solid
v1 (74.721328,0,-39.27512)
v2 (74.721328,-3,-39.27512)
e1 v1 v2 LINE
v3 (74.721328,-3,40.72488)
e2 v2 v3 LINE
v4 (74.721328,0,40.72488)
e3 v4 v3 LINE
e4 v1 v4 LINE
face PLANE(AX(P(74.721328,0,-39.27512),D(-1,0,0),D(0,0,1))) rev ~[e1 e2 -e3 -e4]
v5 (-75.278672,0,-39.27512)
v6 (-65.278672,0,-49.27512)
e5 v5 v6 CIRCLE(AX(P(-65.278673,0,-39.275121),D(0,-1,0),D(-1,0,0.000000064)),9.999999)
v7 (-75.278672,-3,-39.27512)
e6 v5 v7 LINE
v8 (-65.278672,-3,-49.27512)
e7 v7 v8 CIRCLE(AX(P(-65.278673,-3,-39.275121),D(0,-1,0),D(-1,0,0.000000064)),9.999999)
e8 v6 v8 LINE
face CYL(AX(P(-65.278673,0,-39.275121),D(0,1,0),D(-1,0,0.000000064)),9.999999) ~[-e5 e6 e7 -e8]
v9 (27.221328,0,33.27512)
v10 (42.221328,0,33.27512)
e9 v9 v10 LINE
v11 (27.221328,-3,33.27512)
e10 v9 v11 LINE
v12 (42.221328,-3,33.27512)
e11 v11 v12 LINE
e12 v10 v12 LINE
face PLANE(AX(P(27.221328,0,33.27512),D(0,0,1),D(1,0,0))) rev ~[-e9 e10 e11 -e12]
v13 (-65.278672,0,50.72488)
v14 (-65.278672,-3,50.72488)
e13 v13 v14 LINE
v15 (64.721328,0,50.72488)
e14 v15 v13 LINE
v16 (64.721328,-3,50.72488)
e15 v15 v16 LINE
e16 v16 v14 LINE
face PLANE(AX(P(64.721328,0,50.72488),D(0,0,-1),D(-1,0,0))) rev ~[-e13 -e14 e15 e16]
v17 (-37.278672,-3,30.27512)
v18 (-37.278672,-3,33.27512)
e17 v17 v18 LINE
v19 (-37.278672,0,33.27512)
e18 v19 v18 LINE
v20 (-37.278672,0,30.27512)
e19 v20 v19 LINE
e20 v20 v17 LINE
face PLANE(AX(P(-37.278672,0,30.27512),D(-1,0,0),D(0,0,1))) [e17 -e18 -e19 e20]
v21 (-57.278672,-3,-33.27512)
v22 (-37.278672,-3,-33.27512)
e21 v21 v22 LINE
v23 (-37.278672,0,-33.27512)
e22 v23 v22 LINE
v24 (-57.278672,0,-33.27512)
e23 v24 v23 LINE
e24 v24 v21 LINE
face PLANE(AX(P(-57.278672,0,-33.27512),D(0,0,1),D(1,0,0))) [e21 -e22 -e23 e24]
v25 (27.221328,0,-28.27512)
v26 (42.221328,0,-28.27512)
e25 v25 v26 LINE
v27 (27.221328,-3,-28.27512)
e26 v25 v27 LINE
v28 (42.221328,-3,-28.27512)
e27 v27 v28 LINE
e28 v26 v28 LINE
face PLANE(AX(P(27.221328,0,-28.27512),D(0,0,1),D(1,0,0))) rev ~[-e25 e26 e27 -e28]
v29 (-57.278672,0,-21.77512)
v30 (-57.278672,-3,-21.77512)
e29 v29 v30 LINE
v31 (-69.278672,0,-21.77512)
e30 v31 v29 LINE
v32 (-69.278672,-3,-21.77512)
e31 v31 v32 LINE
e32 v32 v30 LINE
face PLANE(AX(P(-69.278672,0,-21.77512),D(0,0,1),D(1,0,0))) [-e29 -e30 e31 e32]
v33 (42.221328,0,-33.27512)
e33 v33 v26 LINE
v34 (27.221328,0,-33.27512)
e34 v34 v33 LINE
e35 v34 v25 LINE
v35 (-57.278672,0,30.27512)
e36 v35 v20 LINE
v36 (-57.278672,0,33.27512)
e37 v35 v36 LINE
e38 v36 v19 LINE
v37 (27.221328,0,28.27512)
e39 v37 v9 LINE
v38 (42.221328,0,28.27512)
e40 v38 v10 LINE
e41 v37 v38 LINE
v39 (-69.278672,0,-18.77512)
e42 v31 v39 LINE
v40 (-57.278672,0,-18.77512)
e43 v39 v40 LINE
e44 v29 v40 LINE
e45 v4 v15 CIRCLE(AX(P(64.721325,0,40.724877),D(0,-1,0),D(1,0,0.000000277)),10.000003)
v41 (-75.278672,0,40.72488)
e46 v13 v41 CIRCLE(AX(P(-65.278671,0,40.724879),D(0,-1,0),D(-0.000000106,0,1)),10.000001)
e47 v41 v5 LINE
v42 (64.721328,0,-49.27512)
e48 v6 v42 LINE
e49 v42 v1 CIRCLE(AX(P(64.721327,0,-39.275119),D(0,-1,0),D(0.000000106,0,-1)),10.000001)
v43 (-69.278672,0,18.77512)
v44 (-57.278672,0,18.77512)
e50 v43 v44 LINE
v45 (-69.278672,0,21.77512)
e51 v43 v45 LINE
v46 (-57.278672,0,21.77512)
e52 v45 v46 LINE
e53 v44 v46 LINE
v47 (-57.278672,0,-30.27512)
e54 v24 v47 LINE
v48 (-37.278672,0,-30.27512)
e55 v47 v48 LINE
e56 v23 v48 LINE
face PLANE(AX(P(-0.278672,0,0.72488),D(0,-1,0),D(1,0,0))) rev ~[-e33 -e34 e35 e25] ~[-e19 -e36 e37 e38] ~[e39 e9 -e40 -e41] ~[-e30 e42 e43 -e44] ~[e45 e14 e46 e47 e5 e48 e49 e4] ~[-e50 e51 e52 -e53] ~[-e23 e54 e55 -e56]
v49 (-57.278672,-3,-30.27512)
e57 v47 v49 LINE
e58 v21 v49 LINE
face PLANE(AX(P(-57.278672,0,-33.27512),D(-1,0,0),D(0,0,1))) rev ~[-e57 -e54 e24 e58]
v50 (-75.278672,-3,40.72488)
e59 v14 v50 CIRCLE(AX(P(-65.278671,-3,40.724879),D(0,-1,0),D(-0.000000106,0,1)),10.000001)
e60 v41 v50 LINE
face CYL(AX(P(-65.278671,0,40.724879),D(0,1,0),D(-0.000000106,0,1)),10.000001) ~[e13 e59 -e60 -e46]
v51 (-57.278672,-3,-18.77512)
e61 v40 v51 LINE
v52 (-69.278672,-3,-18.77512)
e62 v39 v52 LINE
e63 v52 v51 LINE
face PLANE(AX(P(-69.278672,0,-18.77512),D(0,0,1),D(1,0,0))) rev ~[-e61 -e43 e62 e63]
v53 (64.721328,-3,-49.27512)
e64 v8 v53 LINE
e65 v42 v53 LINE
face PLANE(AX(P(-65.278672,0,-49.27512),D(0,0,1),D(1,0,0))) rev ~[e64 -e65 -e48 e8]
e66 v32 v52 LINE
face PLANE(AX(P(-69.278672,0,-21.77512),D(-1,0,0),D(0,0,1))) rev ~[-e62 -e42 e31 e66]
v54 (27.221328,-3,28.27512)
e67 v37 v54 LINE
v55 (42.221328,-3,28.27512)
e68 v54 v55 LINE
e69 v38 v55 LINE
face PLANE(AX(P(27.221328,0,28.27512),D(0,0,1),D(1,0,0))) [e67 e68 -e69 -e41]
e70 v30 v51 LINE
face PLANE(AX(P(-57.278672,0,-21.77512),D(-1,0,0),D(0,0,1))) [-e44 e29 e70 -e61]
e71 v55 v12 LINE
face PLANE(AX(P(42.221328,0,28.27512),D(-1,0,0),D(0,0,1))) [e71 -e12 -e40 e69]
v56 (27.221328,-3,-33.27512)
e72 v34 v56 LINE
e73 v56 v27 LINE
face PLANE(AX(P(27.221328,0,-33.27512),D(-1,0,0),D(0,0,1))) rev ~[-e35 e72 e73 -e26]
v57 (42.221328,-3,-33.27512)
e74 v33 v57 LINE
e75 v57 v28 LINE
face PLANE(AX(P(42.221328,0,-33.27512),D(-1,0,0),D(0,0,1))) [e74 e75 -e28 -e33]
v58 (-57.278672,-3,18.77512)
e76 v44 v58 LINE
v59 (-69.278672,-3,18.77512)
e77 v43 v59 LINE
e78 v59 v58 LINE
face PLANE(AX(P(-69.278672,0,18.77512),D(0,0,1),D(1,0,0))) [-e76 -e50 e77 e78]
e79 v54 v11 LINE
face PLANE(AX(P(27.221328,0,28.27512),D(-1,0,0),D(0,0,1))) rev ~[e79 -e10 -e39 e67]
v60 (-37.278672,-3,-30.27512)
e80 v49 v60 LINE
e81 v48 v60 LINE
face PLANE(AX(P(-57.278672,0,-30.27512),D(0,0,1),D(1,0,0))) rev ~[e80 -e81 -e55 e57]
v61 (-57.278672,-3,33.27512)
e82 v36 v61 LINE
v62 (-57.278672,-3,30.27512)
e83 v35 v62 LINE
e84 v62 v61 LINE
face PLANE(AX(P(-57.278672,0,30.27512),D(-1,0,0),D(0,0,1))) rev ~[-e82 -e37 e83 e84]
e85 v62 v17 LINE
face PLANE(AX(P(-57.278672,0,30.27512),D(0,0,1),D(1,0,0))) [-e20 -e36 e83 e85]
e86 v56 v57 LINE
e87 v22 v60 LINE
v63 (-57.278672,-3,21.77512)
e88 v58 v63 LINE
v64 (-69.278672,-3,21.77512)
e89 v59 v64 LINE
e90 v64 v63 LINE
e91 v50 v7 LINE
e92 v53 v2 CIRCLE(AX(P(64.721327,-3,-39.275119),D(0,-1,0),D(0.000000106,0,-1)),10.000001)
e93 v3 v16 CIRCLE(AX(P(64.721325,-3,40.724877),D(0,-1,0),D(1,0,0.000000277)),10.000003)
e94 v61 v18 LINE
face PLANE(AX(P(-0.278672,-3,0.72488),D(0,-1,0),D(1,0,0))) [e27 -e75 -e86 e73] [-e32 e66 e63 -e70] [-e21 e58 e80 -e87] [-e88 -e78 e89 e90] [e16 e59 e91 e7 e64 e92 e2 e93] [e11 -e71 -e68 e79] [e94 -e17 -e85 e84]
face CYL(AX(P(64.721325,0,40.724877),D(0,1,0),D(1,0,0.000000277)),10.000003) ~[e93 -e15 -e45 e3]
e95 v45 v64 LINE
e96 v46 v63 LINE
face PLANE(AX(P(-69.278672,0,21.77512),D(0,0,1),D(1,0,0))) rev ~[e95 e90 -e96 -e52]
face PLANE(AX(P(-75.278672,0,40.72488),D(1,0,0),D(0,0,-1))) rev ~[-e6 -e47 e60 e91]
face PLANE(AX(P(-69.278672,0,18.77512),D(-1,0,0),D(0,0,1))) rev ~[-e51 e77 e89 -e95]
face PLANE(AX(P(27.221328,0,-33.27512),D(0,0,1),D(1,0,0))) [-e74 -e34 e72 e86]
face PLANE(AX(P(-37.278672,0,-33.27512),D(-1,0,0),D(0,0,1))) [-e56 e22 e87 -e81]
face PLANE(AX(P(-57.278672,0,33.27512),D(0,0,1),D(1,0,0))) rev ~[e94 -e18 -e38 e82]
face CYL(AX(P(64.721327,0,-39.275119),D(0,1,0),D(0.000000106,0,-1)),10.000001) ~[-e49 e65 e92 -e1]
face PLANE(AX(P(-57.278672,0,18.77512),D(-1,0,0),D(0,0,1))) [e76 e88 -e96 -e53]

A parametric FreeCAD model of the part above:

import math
import FreeCAD as App
import Part
import Sketcher
from FreeCAD import Vector

doc = App.newDocument("Part")
body = doc.addObject("PartDesign::Body", "Body")

# Sketch on XZ plane
sketch1 = body.newObject("Sketcher::SketchObject", "Sketch")
sketch1.AttachmentSupport = (doc.getObject("XZ_Plane"), [""])
sketch1.MapMode = "FlatFace"
sketch1.addGeometry([
    Part.ArcOfCircle(Part.Circle(Vector(-65.3, 40.7, 0), Vector(0, 0, 1), 10), math.radians(90), math.radians(180)),  # 0
    Part.LineSegment(Vector(-75.3, 40.7, 0), Vector(-75.3, -39.3, 0)),  # 1
    Part.ArcOfCircle(Part.Circle(Vector(-65.3, -39.3, 0), Vector(0, 0, 1), 10), math.radians(180), math.radians(270)),  # 2
    Part.LineSegment(Vector(-65.3, -49.3, 0), Vector(64.7, -49.3, 0)),  # 3
    Part.ArcOfCircle(Part.Circle(Vector(64.7, -39.3, 0), Vector(0, 0, 1), 10), math.radians(-90), math.radians(0)),  # 4
    Part.LineSegment(Vector(74.7, -39.3, 0), Vector(74.7, 40.7, 0)),  # 5
    Part.ArcOfCircle(Part.Circle(Vector(64.7, 40.7, 0), Vector(0, 0, 1), 10), math.radians(0), math.radians(90)),  # 6
    Part.LineSegment(Vector(64.7, 50.7, 0), Vector(-65.3, 50.7, 0)),  # 7
    Part.LineSegment(Vector(-37.3, -33.3, 0), Vector(-57.3, -33.3, 0)),  # 8
    Part.LineSegment(Vector(-57.3, -33.3, 0), Vector(-57.3, -30.3, 0)),  # 9
    Part.LineSegment(Vector(-57.3, -30.3, 0), Vector(-37.3, -30.3, 0)),  # 10
    Part.LineSegment(Vector(-37.3, -30.3, 0), Vector(-37.3, -33.3, 0)),  # 11
    Part.LineSegment(Vector(-57.3, -21.8, 0), Vector(-69.3, -21.8, 0)),  # 12
    Part.LineSegment(Vector(-69.3, -21.8, 0), Vector(-69.3, -18.8, 0)),  # 13
    Part.LineSegment(Vector(-69.3, -18.8, 0), Vector(-57.3, -18.8, 0)),  # 14
    Part.LineSegment(Vector(-57.3, -18.8, 0), Vector(-57.3, -21.8, 0)),  # 15
    Part.LineSegment(Vector(42.2, -33.3, 0), Vector(27.2, -33.3, 0)),  # 16
    Part.LineSegment(Vector(27.2, -33.3, 0), Vector(27.2, -28.3, 0)),  # 17
    Part.LineSegment(Vector(27.2, -28.3, 0), Vector(42.2, -28.3, 0)),  # 18
    Part.LineSegment(Vector(42.2, -28.3, 0), Vector(42.2, -33.3, 0)),  # 19
    Part.LineSegment(Vector(-57.3, 18.8, 0), Vector(-69.3, 18.8, 0)),  # 20
    Part.LineSegment(Vector(-69.3, 18.8, 0), Vector(-69.3, 21.8, 0)),  # 21
    Part.LineSegment(Vector(-69.3, 21.8, 0), Vector(-57.3, 21.8, 0)),  # 22
    Part.LineSegment(Vector(-57.3, 21.8, 0), Vector(-57.3, 18.8, 0)),  # 23
    Part.LineSegment(Vector(-37.3, 30.3, 0), Vector(-57.3, 30.3, 0)),  # 24
    Part.LineSegment(Vector(-57.3, 30.3, 0), Vector(-57.3, 33.3, 0)),  # 25
    Part.LineSegment(Vector(-57.3, 33.3, 0), Vector(-37.3, 33.3, 0)),  # 26
    Part.LineSegment(Vector(-37.3, 33.3, 0), Vector(-37.3, 30.3, 0)),  # 27
    Part.LineSegment(Vector(42.2, 28.3, 0), Vector(27.2, 28.3, 0)),  # 28
    Part.LineSegment(Vector(27.2, 28.3, 0), Vector(27.2, 33.3, 0)),  # 29
    Part.LineSegment(Vector(27.2, 33.3, 0), Vector(42.2, 33.3, 0)),  # 30
    Part.LineSegment(Vector(42.2, 33.3, 0), Vector(42.2, 28.3, 0)),  # 31
], False)
sketch1.addConstraint([
    Sketcher.Constraint("Tangent", 0, 2, 1, 1),
    Sketcher.Constraint("Tangent", 1, 2, 2, 1),
    Sketcher.Constraint("Tangent", 2, 2, 3, 1),
    Sketcher.Constraint("Tangent", 3, 2, 4, 1),
    Sketcher.Constraint("Tangent", 4, 2, 5, 1),
    Sketcher.Constraint("Tangent", 5, 2, 6, 1),
    Sketcher.Constraint("Tangent", 6, 2, 7, 1),
    Sketcher.Constraint("Tangent", 7, 2, 0, 1),
    Sketcher.Constraint("Coincident", 8, 2, 9, 1),
    Sketcher.Constraint("Coincident", 9, 2, 10, 1),
    Sketcher.Constraint("Coincident", 10, 2, 11, 1),
    Sketcher.Constraint("Coincident", 11, 2, 8, 1),
    Sketcher.Constraint("Coincident", 12, 2, 13, 1),
    Sketcher.Constraint("Coincident", 13, 2, 14, 1),
    Sketcher.Constraint("Coincident", 14, 2, 15, 1),
    Sketcher.Constraint("Coincident", 15, 2, 12, 1),
    Sketcher.Constraint("Coincident", 16, 2, 17, 1),
    Sketcher.Constraint("Coincident", 17, 2, 18, 1),
    Sketcher.Constraint("Coincident", 18, 2, 19, 1),
    Sketcher.Constraint("Coincident", 19, 2, 16, 1),
    Sketcher.Constraint("Coincident", 20, 2, 21, 1),
    Sketcher.Constraint("Coincident", 21, 2, 22, 1),
    Sketcher.Constraint("Coincident", 22, 2, 23, 1),
    Sketcher.Constraint("Coincident", 23, 2, 20, 1),
    Sketcher.Constraint("Coincident", 24, 2, 25, 1),
    Sketcher.Constraint("Coincident", 25, 2, 26, 1),
    Sketcher.Constraint("Coincident", 26, 2, 27, 1),
    Sketcher.Constraint("Coincident", 27, 2, 24, 1),
    Sketcher.Constraint("Coincident", 28, 2, 29, 1),
    Sketcher.Constraint("Coincident", 29, 2, 30, 1),
    Sketcher.Constraint("Coincident", 30, 2, 31, 1),
    Sketcher.Constraint("Coincident", 31, 2, 28, 1),
    Sketcher.Constraint("Vertical", 1),
    Sketcher.Constraint("Horizontal", 3),
    Sketcher.Constraint("Vertical", 5),
    Sketcher.Constraint("Horizontal", 7),
    Sketcher.Constraint("Horizontal", 8),
    Sketcher.Constraint("Vertical", 9),
    Sketcher.Constraint("Horizontal", 10),
    Sketcher.Constraint("Vertical", 11),
    Sketcher.Constraint("Horizontal", 12),
    Sketcher.Constraint("Vertical", 13),
    Sketcher.Constraint("Horizontal", 14),
    Sketcher.Constraint("Vertical", 15),
    Sketcher.Constraint("Horizontal", 16),
    Sketcher.Constraint("Vertical", 17),
    Sketcher.Constraint("Horizontal", 18),
    Sketcher.Constraint("Vertical", 19),
    Sketcher.Constraint("Horizontal", 20),
    Sketcher.Constraint("Vertical", 21),
    Sketcher.Constraint("Horizontal", 22),
    Sketcher.Constraint("Vertical", 23),
    Sketcher.Constraint("Horizontal", 24),
    Sketcher.Constraint("Vertical", 25),
    Sketcher.Constraint("Horizontal", 26),
    Sketcher.Constraint("Vertical", 27),
    Sketcher.Constraint("Horizontal", 28),
    Sketcher.Constraint("Vertical", 29),
    Sketcher.Constraint("Horizontal", 30),
    Sketcher.Constraint("Vertical", 31),
    Sketcher.Constraint("Equal", 0, 2),
    Sketcher.Constraint("Equal", 2, 4),
    Sketcher.Constraint("Equal", 4, 6),
    Sketcher.Constraint("Symmetric", 13, 2, 20, 2, -1),
    Sketcher.Constraint("Symmetric", 15, 2, 22, 2, -1),
    Sketcher.Constraint("Symmetric", 9, 2, 24, 2, -1),
    Sketcher.Constraint("Symmetric", 11, 2, 26, 2, -1),
    Sketcher.Constraint("Symmetric", 17, 2, 28, 2, -1),
    Sketcher.Constraint("Symmetric", 19, 2, 30, 2, -1),
    Sketcher.Constraint("Horizontal", 11, 2, 16, 2),
    Sketcher.Constraint("Vertical", 9, 2, 14, 2),
    Sketcher.Constraint("Equal", 11, 13),
    Sketcher.Constraint("Radius", 0, 10.000001),
    Sketcher.Constraint("DistanceX", 3, 1, 3, 2, 130.0),
    Sketcher.Constraint("DistanceX", 8, 2, 8, 1, 20.0),
    Sketcher.Constraint("DistanceX", 12, 2, 12, 1, 12.0),
    Sketcher.Constraint("DistanceX", 16, 2, 16, 1, 15.0),
    Sketcher.Constraint("DistanceY", 1, 2, 1, 1, 80.0),
    Sketcher.Constraint("DistanceY", 9, 1, 9, 2, 3.0),
    Sketcher.Constraint("DistanceY", 17, 1, 17, 2, 5.0),
    Sketcher.Constraint("DistanceX", 2, 3, 8, 2, 8.000001),
    Sketcher.Constraint("DistanceY", 2, 3, 8, 2, 6.000001),
    Sketcher.Constraint("DistanceY", 9, 2, 12, 2, 8.5),
    Sketcher.Constraint("DistanceX", 16, 2, 4, 3, 37.499999),
    Sketcher.Constraint("DistanceX", 0, 3, -1, 1, 65.278671),
    Sketcher.Constraint("DistanceY", -1, 1, 0, 3, 40.724879),
])
pad1 = body.newObject("PartDesign::Pad", "Pad")
pad1.Profile = sketch1
pad1.Length = 3

doc.recompute()
